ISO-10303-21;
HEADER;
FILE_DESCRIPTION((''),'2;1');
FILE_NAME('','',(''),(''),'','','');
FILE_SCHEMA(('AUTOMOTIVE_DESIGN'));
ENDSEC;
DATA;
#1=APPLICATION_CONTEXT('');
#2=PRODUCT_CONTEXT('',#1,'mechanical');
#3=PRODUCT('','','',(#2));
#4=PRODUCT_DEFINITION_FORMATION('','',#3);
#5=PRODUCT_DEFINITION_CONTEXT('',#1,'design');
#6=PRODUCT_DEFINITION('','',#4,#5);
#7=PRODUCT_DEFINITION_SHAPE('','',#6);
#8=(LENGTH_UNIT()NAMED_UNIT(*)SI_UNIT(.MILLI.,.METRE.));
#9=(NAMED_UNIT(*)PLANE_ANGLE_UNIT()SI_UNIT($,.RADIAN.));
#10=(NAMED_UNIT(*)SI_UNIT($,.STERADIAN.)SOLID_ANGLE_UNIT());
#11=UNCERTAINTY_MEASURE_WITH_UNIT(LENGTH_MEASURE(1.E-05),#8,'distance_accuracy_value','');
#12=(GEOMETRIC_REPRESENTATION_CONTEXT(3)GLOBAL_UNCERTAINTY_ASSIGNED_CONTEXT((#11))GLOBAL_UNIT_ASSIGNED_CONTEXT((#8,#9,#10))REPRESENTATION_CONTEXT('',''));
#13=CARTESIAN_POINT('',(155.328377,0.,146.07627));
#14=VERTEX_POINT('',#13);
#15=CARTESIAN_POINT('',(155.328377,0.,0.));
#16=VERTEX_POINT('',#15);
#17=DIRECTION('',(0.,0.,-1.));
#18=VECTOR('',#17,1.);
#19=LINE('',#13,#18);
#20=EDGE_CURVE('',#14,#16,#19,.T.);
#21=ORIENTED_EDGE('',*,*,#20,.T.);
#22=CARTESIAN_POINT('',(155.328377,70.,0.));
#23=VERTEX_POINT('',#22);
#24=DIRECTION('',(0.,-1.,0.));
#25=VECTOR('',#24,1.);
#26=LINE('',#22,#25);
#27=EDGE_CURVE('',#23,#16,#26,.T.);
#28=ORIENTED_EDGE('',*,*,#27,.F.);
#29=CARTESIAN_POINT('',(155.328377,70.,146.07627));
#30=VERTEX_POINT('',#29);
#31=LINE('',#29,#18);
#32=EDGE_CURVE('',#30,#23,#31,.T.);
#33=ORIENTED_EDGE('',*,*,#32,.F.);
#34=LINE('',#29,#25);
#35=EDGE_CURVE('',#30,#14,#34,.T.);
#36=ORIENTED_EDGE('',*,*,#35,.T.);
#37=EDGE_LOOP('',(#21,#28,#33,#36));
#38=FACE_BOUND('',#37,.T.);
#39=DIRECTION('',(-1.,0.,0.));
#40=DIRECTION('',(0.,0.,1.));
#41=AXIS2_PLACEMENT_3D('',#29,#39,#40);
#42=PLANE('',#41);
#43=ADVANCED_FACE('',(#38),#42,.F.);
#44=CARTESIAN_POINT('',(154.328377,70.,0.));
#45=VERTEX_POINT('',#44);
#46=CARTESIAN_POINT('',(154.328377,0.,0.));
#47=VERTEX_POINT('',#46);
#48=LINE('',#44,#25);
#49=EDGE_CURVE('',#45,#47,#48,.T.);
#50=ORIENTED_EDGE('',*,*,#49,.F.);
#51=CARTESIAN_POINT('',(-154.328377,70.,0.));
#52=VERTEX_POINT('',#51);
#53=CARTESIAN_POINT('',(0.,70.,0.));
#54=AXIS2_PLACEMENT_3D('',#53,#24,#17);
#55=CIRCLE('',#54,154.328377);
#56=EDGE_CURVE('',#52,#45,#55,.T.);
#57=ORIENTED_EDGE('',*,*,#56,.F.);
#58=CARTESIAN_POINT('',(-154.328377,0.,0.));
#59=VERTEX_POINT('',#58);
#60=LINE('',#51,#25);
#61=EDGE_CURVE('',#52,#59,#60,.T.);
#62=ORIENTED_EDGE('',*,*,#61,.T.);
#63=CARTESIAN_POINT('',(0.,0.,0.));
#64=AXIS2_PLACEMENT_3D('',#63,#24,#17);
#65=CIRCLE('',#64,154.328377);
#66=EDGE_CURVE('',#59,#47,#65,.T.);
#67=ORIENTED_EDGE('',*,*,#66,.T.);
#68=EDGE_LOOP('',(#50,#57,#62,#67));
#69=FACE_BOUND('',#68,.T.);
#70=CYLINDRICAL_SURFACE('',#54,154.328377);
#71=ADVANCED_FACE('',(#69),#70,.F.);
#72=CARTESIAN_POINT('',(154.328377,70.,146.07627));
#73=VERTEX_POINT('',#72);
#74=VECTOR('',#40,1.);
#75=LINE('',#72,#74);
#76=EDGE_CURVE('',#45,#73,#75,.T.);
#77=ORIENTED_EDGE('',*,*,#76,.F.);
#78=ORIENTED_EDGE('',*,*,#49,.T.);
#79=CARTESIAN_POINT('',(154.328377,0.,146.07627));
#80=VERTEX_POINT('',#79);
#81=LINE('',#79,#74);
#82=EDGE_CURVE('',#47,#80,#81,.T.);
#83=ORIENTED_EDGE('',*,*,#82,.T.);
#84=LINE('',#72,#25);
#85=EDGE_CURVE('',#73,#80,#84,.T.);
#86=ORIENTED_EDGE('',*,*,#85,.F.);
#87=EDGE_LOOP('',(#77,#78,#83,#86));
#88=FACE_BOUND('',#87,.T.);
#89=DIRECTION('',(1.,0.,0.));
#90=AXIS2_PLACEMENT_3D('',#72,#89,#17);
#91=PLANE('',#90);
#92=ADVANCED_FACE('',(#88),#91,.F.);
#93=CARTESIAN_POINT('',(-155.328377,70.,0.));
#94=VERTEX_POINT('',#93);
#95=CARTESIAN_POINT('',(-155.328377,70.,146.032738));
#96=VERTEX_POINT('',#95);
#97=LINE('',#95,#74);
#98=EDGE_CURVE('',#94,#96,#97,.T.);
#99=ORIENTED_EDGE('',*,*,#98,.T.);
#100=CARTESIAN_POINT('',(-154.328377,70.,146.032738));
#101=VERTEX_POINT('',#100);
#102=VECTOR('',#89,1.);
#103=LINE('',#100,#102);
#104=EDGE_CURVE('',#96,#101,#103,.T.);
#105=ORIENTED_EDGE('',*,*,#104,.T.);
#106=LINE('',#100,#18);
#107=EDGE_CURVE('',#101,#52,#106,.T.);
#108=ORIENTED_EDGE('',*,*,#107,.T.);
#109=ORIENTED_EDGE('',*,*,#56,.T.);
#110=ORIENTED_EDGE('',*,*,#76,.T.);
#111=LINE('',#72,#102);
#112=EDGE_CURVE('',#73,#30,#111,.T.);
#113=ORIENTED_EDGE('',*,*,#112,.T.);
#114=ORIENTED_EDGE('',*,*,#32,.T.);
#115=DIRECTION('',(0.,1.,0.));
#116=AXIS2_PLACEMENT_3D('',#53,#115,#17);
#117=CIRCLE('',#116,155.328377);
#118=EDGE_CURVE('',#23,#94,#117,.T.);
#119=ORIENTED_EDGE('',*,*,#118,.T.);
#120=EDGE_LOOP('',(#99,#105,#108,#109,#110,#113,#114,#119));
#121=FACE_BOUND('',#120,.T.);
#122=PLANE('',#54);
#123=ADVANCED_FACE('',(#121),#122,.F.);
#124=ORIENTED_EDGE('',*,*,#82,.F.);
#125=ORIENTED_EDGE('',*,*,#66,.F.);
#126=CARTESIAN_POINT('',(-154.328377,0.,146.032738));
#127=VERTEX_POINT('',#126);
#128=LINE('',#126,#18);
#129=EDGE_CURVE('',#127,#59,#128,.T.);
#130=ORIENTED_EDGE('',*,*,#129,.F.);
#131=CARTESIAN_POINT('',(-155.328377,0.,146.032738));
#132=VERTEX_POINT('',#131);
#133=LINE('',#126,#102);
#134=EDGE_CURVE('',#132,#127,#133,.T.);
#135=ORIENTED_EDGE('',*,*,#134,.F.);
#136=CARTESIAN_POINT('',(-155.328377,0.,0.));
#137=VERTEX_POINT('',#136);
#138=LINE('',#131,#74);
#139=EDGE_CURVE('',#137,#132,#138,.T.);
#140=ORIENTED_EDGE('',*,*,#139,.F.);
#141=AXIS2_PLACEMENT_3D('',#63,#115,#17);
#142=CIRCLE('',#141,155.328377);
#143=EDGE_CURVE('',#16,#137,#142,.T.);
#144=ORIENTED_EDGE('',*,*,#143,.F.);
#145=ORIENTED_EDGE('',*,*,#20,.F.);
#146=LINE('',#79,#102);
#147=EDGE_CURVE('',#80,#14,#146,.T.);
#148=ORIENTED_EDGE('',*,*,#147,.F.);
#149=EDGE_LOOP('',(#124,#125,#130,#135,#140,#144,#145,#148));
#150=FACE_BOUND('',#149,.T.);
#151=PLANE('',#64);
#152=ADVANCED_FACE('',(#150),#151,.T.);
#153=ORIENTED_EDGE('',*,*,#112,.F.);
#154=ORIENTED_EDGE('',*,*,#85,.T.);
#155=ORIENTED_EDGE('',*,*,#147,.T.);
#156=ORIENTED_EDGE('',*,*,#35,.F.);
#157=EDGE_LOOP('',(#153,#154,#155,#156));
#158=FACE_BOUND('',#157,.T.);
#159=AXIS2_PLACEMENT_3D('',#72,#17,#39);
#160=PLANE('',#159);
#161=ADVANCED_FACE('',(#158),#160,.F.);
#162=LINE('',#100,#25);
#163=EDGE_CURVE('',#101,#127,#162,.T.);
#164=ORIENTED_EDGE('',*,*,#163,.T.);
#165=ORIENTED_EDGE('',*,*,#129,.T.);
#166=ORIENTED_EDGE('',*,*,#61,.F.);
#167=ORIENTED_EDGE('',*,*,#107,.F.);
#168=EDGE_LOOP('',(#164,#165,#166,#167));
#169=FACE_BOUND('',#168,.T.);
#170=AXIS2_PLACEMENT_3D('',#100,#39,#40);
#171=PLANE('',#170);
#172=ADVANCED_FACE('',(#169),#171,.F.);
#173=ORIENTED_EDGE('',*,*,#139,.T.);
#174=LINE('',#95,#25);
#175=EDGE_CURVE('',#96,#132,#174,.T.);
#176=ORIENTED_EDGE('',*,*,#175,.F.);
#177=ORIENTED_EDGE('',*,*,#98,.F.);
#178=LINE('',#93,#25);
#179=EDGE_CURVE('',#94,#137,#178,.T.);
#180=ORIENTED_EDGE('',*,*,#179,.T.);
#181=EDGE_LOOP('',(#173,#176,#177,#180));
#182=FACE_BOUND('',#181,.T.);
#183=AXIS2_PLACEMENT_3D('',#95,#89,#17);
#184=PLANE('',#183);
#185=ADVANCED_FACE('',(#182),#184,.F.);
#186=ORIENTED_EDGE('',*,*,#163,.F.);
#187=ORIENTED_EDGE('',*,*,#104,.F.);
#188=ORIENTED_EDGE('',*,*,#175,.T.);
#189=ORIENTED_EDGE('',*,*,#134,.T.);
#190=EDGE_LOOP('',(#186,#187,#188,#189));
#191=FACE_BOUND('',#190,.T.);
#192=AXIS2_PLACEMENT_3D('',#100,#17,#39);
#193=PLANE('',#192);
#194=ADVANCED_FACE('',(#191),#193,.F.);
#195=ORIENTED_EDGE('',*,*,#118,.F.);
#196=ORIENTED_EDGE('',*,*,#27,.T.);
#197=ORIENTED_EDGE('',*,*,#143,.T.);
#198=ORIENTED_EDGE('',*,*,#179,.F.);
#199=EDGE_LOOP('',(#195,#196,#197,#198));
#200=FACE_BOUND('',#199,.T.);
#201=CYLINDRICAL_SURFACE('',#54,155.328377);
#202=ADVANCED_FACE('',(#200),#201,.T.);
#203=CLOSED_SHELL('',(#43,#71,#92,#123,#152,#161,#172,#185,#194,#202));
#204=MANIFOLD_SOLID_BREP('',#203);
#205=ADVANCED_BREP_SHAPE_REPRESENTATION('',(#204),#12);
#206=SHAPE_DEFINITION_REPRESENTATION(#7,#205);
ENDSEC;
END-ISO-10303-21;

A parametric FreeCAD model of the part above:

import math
import FreeCAD as App
import Part
import Sketcher
Q = App.Units.Quantity

doc = App.newDocument("Part")
body = doc.addObject("PartDesign::Body", "Body")

# Sketch on XZ plane
sketch1 = body.newObject("Sketcher::SketchObject", "Sketch")
sketch1.AttachmentSupport = (doc.getObject("XZ_Plane"), [""])
sketch1.MapMode = "FlatFace"
sketch1.addGeometry([
    Part.LineSegment(App.Vector(-155.3, 146, 0), App.Vector(-154.3, 146, 0)),  # 0
    Part.LineSegment(App.Vector(-154.3, 146, 0), App.Vector(-154.3, 0, 0)),  # 1
    Part.ArcOfCircle(Part.Circle(App.Vector(0, 0, 0), App.Vector(0, 0, 1), 154.3), math.radians(180), math.radians(360)),  # 2
    Part.LineSegment(App.Vector(154.3, 0, 0), App.Vector(154.3, 146.1, 0)),  # 3
    Part.LineSegment(App.Vector(154.3, 146.1, 0), App.Vector(155.3, 146.1, 0)),  # 4
    Part.LineSegment(App.Vector(155.3, 146.1, 0), App.Vector(155.3, 0, 0)),  # 5
    Part.ArcOfCircle(Part.Circle(App.Vector(0, 0, 0), App.Vector(0, 0, 1), 155.3), math.radians(180), math.radians(360)),  # 6
    Part.LineSegment(App.Vector(-155.3, 0, 0), App.Vector(-155.3, 146, 0)),  # 7
], False)
sketch1.addConstraint([
    Sketcher.Constraint("Coincident", 0, 2, 1, 1),
    Sketcher.Constraint("Tangent", 1, 2, 2, 1),
    Sketcher.Constraint("Tangent", 2, 2, 3, 1),
    Sketcher.Constraint("Coincident", 3, 2, 4, 1),
    Sketcher.Constraint("Coincident", 4, 2, 5, 1),
    Sketcher.Constraint("Tangent", 5, 2, 6, 2),
    Sketcher.Constraint("Tangent", 6, 1, 7, 1),
    Sketcher.Constraint("Coincident", 7, 2, 0, 1),
    Sketcher.Constraint("Horizontal", 0),
    Sketcher.Constraint("Vertical", 1),
    Sketcher.Constraint("Vertical", 3),
    Sketcher.Constraint("Horizontal", 4),
    Sketcher.Constraint("Vertical", 5),
    Sketcher.Constraint("Vertical", 7),
    Sketcher.Constraint("Coincident", 2, 3, -1, 1),
    Sketcher.Constraint("Coincident", 6, 3, -1, 1),
    Sketcher.Constraint("DistanceX", 0, 1, 0, 2, Q("1 mm")),
    Sketcher.Constraint("Radius", 2, Q("154.328377 mm")),
    Sketcher.Constraint("DistanceY", 3, 1, 3, 2, Q("146.07627 mm")),
    Sketcher.Constraint("DistanceY", 1, 2, 1, 1, Q("146.032738 mm")),
])
pad1 = body.newObject("PartDesign::Pad", "Pad")
pad1.Profile = sketch1
pad1.Length = 70
pad1.Reversed = True

doc.recompute()
